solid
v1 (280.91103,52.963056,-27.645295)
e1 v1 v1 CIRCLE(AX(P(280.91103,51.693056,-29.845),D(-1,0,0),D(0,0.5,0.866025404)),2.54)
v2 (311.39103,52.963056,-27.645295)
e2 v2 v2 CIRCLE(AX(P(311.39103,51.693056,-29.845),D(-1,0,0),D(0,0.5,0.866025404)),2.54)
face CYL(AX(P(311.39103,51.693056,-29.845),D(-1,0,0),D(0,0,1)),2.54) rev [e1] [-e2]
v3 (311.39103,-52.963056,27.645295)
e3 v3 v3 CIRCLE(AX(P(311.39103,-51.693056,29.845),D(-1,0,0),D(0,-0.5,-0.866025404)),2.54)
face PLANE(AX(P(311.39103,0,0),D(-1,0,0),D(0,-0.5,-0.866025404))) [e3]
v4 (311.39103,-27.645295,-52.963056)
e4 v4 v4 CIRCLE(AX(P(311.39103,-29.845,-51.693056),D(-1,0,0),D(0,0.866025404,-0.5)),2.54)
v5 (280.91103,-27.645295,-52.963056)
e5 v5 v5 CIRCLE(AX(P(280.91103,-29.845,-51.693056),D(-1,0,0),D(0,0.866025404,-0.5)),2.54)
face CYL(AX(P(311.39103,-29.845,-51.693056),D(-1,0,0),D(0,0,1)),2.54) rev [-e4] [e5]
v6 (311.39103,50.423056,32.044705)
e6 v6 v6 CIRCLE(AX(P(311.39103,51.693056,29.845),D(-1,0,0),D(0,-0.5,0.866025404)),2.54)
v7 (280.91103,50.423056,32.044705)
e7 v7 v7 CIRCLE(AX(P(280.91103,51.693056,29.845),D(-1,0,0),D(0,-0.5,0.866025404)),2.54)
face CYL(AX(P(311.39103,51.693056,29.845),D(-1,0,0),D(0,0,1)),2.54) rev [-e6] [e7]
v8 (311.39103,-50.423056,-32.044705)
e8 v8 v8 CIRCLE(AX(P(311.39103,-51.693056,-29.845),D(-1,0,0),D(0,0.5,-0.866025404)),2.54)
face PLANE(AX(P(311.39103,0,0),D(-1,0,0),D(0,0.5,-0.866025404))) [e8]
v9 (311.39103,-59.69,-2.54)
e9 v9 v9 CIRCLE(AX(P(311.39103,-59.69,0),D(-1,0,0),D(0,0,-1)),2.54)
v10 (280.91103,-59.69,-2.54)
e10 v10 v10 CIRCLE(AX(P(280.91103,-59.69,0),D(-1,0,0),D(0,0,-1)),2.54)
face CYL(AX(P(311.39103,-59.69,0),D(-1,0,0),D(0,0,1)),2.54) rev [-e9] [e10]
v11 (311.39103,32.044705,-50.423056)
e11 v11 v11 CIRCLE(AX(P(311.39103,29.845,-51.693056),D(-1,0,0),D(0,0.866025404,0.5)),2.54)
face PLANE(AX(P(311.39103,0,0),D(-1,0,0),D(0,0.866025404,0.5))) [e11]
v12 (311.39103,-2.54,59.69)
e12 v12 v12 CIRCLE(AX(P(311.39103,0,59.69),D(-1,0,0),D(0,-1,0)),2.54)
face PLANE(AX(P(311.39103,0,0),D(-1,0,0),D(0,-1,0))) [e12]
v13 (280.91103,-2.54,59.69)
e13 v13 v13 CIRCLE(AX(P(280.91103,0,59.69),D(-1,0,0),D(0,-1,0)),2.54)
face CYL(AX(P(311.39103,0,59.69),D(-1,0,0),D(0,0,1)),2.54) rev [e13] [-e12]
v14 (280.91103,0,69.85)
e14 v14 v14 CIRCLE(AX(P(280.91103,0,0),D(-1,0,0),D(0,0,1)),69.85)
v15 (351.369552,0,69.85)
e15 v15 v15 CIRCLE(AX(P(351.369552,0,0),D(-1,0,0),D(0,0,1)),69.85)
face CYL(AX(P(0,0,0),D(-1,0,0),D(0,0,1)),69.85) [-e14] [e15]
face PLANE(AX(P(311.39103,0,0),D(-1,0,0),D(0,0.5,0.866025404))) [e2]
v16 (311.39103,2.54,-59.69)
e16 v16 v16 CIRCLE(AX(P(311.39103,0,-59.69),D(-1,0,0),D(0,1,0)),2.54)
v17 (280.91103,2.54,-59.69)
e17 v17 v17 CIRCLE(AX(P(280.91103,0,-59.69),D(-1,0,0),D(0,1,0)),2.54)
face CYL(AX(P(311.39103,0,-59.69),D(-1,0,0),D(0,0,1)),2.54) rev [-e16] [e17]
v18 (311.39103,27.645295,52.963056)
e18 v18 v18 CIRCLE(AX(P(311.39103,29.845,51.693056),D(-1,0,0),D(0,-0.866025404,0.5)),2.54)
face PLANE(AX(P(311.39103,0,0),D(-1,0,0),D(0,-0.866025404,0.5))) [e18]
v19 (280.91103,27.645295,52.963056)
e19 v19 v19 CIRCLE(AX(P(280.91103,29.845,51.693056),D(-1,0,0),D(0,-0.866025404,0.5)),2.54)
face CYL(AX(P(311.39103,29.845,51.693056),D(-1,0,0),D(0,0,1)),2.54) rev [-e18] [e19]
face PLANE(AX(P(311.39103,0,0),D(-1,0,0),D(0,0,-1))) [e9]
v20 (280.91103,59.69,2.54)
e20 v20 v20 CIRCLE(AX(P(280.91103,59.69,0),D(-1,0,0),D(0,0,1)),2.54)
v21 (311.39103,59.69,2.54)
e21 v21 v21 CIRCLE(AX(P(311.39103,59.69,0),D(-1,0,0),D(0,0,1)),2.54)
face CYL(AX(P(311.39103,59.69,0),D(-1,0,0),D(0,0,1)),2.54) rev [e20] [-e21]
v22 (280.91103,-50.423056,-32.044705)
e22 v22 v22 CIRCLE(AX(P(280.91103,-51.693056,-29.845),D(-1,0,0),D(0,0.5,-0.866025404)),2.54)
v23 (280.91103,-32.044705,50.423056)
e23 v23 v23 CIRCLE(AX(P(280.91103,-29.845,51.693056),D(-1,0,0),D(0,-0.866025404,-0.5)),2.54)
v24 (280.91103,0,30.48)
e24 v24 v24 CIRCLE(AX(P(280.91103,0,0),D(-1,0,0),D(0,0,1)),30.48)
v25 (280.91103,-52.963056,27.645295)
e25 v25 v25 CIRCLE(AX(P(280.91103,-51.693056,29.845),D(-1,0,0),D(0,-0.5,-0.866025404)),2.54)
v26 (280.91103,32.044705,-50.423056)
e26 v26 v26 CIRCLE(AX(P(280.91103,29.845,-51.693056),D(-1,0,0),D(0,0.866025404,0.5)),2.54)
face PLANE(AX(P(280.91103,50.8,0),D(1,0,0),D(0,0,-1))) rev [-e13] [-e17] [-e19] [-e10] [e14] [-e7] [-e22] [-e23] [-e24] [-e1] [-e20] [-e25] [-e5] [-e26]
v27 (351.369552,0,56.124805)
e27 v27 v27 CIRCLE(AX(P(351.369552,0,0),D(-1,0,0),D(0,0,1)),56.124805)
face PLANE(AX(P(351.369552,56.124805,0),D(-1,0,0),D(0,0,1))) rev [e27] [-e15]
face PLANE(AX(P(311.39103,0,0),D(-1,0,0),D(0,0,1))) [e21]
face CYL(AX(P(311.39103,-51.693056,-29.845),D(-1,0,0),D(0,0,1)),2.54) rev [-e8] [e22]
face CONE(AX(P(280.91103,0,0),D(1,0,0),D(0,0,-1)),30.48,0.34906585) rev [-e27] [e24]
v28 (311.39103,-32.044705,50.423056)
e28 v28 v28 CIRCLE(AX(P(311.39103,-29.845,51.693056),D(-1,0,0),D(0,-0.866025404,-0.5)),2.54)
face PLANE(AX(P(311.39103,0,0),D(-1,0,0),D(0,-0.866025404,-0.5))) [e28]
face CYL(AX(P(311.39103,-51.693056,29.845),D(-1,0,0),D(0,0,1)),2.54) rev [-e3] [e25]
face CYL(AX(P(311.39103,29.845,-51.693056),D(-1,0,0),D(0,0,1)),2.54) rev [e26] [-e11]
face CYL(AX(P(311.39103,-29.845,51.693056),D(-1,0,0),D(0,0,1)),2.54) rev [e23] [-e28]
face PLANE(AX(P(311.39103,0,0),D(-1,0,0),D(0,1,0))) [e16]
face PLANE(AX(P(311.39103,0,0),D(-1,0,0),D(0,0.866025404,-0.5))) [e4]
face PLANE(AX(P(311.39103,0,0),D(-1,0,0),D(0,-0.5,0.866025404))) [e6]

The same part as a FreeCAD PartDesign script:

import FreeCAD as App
import Part
import Sketcher
Q = App.Units.Quantity

doc = App.newDocument("Part")
params = doc.addObject("Spreadsheet::Sheet", "Params")
for row, (alias, value) in enumerate([
    ("sketch1_height", "1.55 in"),
    ("revolution_angle", "360 deg"),
    ("sketch2_diameter", "0.2 in"),
    ("pocket1_length", "1.2 in"),
], start=1):
    params.set(f"A{row}", alias)
    params.set(f"B{row}", "=" + value)
    params.setAlias(f"B{row}", alias)

body = doc.addObject("PartDesign::Body", "Body")

# Sketch on XY plane
sketch1 = body.newObject("Sketcher::SketchObject", "Sketch")
sketch1.AttachmentSupport = (doc.getObject("XY_Plane"), [""])
sketch1.MapMode = "FlatFace"
sketch1.addGeometry([
    Part.LineSegment(App.Vector(281, 30, 0), App.Vector(351, 56, 0)),
    Part.LineSegment(App.Vector(351, 56, 0), App.Vector(351, 70, 0)),
    Part.LineSegment(App.Vector(351, 70, 0), App.Vector(281, 70, 0)),
    Part.LineSegment(App.Vector(281, 70, 0), App.Vector(281, 30, 0)),
], False)
sketch1.addConstraint([
    Sketcher.Constraint("Coincident", 0, 2, 1, 1),
    Sketcher.Constraint("Coincident", 1, 2, 2, 1),
    Sketcher.Constraint("Coincident", 2, 2, 3, 1),
    Sketcher.Constraint("Coincident", 3, 2, 0, 1),
    Sketcher.Constraint("Vertical", 1),
    Sketcher.Constraint("Horizontal", 2),
    Sketcher.Constraint("Vertical", 3),
    Sketcher.Constraint("Angle", 0, Q("20 deg")),
    Sketcher.Constraint("DistanceY", 3, 2, 3, 1, Q("1.55 in")),
    Sketcher.Constraint("DistanceY", -1, 1, 3, 2, Q("1.2 in")),
    Sketcher.Constraint("DistanceX", 2, 2, 2, 1, 70.458522),
    Sketcher.Constraint("DistanceX", -1, 1, 2, 2, 280.91103),
])
sketch1.setExpression("Constraints[8]", "Params.sketch1_height")
revolution = body.newObject("PartDesign::Revolution", "Revolution")
revolution.Profile = sketch1
revolution.ReferenceAxis = (sketch1, ["H_Axis"])
revolution.setExpression("Angle", "Params.revolution_angle")

# Sketch on YZ plane
sketch2 = body.newObject("Sketcher::SketchObject", "Sketch001")
sketch2.AttachmentSupport = (doc.getObject("YZ_Plane"), [""])
sketch2.MapMode = "FlatFace"
sketch2.AttachmentOffset = App.Placement(App.Vector(0, 0, 280.91103), App.Rotation())
sketch2.addGeometry(Part.Circle(App.Vector(59.7, 0, 0), App.Vector(0, 0, 1), 2.5), False)
sketch2.addConstraint([
    Sketcher.Constraint("PointOnObject", 0, 3, -1),
    Sketcher.Constraint("Diameter", 0, Q("0.2 in")),
    Sketcher.Constraint("DistanceX", -1, 1, 0, 3, Q("2.35 in")),
])
sketch2.setExpression("Constraints[1]", "Params.sketch2_diameter")
pocket1 = body.newObject("PartDesign::Pocket", "Pocket")
pocket1.Profile = sketch2
pocket1.setExpression("Length", "Params.pocket1_length")
pocket1.Reversed = True
doc.recompute()

polarpattern = body.newObject("PartDesign::PolarPattern", "PolarPattern")
polarpattern.Originals = [pocket1]
polarpattern.Axis = (doc.getObject("X_Axis"), [""])
polarpattern.Angle = 360
polarpattern.Occurrences = 12
body.Tip = polarpattern

doc.recompute()
